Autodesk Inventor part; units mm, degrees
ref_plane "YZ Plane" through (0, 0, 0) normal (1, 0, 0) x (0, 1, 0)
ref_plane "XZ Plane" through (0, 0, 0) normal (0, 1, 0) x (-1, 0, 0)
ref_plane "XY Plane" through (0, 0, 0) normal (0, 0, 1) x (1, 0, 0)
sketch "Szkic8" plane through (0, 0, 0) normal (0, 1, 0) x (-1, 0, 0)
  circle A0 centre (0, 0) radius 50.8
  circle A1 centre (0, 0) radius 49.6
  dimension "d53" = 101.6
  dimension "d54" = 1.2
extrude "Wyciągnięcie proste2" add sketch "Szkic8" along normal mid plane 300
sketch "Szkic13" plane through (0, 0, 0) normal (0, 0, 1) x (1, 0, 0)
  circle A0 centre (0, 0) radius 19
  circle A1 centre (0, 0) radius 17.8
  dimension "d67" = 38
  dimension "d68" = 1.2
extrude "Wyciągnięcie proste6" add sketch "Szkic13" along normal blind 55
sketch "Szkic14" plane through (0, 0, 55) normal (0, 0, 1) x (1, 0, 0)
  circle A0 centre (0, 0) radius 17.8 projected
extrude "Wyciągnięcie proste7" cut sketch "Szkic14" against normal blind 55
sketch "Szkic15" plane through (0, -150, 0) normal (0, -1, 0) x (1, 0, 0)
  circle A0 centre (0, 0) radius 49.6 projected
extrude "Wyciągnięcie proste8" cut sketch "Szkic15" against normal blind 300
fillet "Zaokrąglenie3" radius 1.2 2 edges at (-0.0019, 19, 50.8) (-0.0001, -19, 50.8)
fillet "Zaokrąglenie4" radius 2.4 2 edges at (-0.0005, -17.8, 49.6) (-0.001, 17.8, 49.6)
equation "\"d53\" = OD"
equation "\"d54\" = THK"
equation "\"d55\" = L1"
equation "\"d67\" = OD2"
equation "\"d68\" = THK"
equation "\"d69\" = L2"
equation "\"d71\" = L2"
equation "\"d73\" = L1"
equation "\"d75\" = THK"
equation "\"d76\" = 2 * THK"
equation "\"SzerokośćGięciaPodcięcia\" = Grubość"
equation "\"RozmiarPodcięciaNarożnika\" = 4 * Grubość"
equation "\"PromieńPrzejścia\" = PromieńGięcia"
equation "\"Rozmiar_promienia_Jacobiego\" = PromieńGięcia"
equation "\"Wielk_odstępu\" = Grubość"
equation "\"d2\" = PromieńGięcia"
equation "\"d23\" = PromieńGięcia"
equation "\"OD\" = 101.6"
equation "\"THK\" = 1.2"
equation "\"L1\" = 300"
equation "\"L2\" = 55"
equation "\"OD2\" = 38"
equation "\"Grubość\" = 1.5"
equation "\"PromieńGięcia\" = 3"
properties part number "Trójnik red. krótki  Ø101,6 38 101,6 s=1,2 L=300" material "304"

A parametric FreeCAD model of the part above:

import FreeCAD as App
import Part
import Sketcher
from FreeCAD import Vector


def edges_at(feature, points):
    """Names of the edges that pass closest to the given points."""
    edges = feature.Shape.Edges
    near = lambda p: min(range(len(edges)), key=lambda i: edges[i].distToShape(Part.Vertex(*p))[0])
    return sorted({f"Edge{near(p) + 1}" for p in points})

doc = App.newDocument("Part")
body = doc.addObject("PartDesign::Body", "Body")

sketch1 = doc.addObject("Sketcher::SketchObject", "Sketch")
body.addObject(sketch1)
sketch1.AttachmentSupport = (doc.XZ_Plane, [""])
sketch1.MapMode = "FlatFace"
sketch1.addGeometry([
    Part.Circle(Vector(0, 0, 0), Vector(0, 0, 1), 50.8),
    Part.Circle(Vector(0, 0, 0), Vector(0, 0, 1), 49.6),
], False)
sketch1.addConstraint([
    Sketcher.Constraint("Coincident", 0, 3, -1, 1),
    Sketcher.Constraint("Coincident", 1, 3, -1, 1),
    Sketcher.Constraint("Diameter", 0, 101.6),
    Sketcher.Constraint("Diameter", 1, 99.2),
])
pad1 = doc.addObject("PartDesign::Pad", "Pad")
body.addObject(pad1)
pad1.Profile = sketch1
pad1.Length = 300
pad1.Midplane = True

sketch2 = doc.addObject("Sketcher::SketchObject", "Sketch001")
body.addObject(sketch2)
sketch2.AttachmentSupport = (doc.XY_Plane, [""])
sketch2.MapMode = "FlatFace"
sketch2.addGeometry([
    Part.Circle(Vector(0, 0, 0), Vector(0, 0, 1), 19),
    Part.Circle(Vector(0, 0, 0), Vector(0, 0, 1), 17.8),
], False)
sketch2.addConstraint([
    Sketcher.Constraint("Coincident", 0, 3, -1, 1),
    Sketcher.Constraint("Coincident", 1, 3, -1, 1),
    Sketcher.Constraint("Diameter", 0, 38.0),
    Sketcher.Constraint("Diameter", 1, 35.6),
])
pad2 = doc.addObject("PartDesign::Pad", "Pad001")
body.addObject(pad2)
pad2.Profile = sketch2
pad2.Length = 55

sketch3 = doc.addObject("Sketcher::SketchObject", "Sketch002")
body.addObject(sketch3)
sketch3.AttachmentSupport = (doc.XY_Plane, [""])
sketch3.MapMode = "FlatFace"
sketch3.AttachmentOffset = App.Placement(Vector(0, 0, 55), App.Rotation())
sketch3.addGeometry(Part.Circle(Vector(0, 0, 0), Vector(0, 0, 1), 17.8), False)
sketch3.addConstraint([
    Sketcher.Constraint("Coincident", 0, 3, -1, 1),
    Sketcher.Constraint("Diameter", 0, 35.6),
])
pocket1 = doc.addObject("PartDesign::Pocket", "Pocket")
body.addObject(pocket1)
pocket1.Profile = sketch3
pocket1.Length = 55

sketch4 = doc.addObject("Sketcher::SketchObject", "Sketch003")
body.addObject(sketch4)
sketch4.AttachmentSupport = (doc.XZ_Plane, [""])
sketch4.MapMode = "FlatFace"
sketch4.AttachmentOffset = App.Placement(Vector(0, 0, 150), App.Rotation())
sketch4.addGeometry(Part.Circle(Vector(0, 0, 0), Vector(0, 0, 1), 49.6), False)
sketch4.addConstraint([
    Sketcher.Constraint("Coincident", 0, 3, -1, 1),
    Sketcher.Constraint("Diameter", 0, 99.2),
])
pocket2 = doc.addObject("PartDesign::Pocket", "Pocket001")
body.addObject(pocket2)
pocket2.Profile = sketch4
pocket2.Length = 300
doc.recompute()

fillet = doc.addObject("PartDesign::Fillet", "Fillet")
body.addObject(fillet)
fillet.Base = (pocket2, edges_at(pocket2, [(-0.002, 19, 50.8), (0, -19, 50.8)]))
fillet.Radius = 1.2
doc.recompute()

fillet2 = doc.addObject("PartDesign::Fillet", "Fillet001")
body.addObject(fillet2)
fillet2.Base = (fillet, edges_at(fillet, [(-0.001, -17.8, 49.6), (-0.001, 17.8, 49.6)]))
fillet2.Radius = 2.4

doc.recompute()
